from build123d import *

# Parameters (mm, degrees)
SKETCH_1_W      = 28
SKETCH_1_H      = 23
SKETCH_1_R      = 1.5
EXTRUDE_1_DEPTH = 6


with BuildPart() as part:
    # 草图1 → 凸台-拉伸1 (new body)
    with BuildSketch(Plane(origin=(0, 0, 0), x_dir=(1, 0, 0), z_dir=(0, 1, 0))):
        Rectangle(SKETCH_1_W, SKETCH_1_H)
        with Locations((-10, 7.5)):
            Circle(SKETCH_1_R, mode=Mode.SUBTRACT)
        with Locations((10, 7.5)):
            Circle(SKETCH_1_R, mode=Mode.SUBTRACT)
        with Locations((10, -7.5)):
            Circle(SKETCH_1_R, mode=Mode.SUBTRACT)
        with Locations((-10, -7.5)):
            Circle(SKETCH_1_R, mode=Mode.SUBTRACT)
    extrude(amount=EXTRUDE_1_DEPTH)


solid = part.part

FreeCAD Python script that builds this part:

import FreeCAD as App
import Part
import Sketcher


def add_polygon(sketch, points):
    """Adds a closed chain of lines whose ends are joined by coincident constraints."""
    first, n = sketch.GeometryCount, len(points)
    for a, b in zip(points, points[1:] + points[:1]):
        sketch.addGeometry(Part.LineSegment(App.Vector(*a, 0), App.Vector(*b, 0)), False)
    for i in range(n):
        sketch.addConstraint(Sketcher.Constraint("Coincident", first + i, 2, first + (i + 1) % n, 1))

doc = App.newDocument("Part")
body = doc.addObject("PartDesign::Body", "Body")

sketch1 = doc.addObject("Sketcher::SketchObject", "Sketch")
body.addObject(sketch1)
sketch1.AttachmentSupport = (doc.XZ_Plane, [""])
sketch1.MapMode = "FlatFace"
add_polygon(sketch1, [(-14, -11.5), (-14, 11.5), (14, 11.5), (14, -11.5)])
sketch1.addGeometry(Part.Circle(App.Vector(-10, 7.5, 0), App.Vector(0, 0, 1), 1.5), False)
sketch1.addGeometry(Part.Circle(App.Vector(10, 7.5, 0), App.Vector(0, 0, 1), 1.5), False)
sketch1.addGeometry(Part.Circle(App.Vector(-10, -7.5, 0), App.Vector(0, 0, 1), 1.5), False)
sketch1.addGeometry(Part.Circle(App.Vector(10, -7.5, 0), App.Vector(0, 0, 1), 1.5), False)
sketch1.addConstraint([
    Sketcher.Constraint("Vertical", 0),
    Sketcher.Constraint("Horizontal", 1),
    Sketcher.Constraint("Vertical", 2),
    Sketcher.Constraint("Horizontal", 3),
    Sketcher.Constraint("Equal", 4, 5),
    Sketcher.Constraint("Equal", 5, 6),
    Sketcher.Constraint("Equal", 6, 7),
    Sketcher.Constraint("Symmetric", 5, 3, 6, 3, -1, 1),
    Sketcher.Constraint("Symmetric", 4, 3, 7, 3, -1, 1),
    Sketcher.Constraint("Symmetric", 0, 2, 2, 2, -1, 1),
    Sketcher.Constraint("Symmetric", 4, 3, 5, 3, -2),
    Sketcher.Constraint("Diameter", 4, 3.0),
    Sketcher.Constraint("DistanceX", 1, 1, 1, 2, 28.0),
    Sketcher.Constraint("DistanceY", 0, 1, 0, 2, 23.0),
    Sketcher.Constraint("DistanceX", 4, 3, -1, 1, 10.0),
    Sketcher.Constraint("DistanceY", 6, 3, 4, 3, 15.0),
])
pad1 = doc.addObject("PartDesign::Pad", "Pad")
body.addObject(pad1)
pad1.Profile = sketch1
pad1.Length = 6
pad1.Reversed = True

doc.recompute()
